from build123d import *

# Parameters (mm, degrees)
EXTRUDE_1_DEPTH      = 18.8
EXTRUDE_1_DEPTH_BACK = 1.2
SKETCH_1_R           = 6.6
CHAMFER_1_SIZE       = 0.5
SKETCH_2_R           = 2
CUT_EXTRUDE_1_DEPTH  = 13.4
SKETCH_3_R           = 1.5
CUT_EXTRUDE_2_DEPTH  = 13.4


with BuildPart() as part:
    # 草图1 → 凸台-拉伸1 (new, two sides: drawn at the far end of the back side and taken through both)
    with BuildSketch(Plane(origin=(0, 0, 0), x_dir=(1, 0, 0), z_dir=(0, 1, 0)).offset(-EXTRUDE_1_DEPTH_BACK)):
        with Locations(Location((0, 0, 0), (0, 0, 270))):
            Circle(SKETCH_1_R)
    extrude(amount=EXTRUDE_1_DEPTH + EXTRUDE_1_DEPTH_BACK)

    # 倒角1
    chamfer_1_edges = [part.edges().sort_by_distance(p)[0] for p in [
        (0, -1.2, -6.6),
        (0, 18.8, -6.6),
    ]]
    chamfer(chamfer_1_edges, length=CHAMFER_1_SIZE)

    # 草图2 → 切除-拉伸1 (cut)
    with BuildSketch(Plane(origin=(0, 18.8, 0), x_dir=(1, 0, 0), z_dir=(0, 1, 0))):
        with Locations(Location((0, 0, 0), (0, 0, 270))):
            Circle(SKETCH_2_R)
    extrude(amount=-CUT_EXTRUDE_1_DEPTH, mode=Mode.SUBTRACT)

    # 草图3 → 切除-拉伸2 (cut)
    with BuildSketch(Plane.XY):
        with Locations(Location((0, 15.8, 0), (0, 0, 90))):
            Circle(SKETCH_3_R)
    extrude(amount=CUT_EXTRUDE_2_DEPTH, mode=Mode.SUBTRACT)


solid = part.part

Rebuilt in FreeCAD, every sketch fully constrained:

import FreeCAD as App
import Part
import Sketcher


def edges_at(feature, points):
    """Names of the edges that pass closest to the given points."""
    edges = feature.Shape.Edges
    near = lambda p: min(range(len(edges)), key=lambda i: edges[i].distToShape(Part.Vertex(*p))[0])
    return sorted({f"Edge{near(p) + 1}" for p in points})

doc = App.newDocument("Part")
body = doc.addObject("PartDesign::Body", "Body")

# Sketch on XZ plane
sketch1 = doc.addObject("Sketcher::SketchObject", "Sketch")
body.addObject(sketch1)
sketch1.AttachmentSupport = (doc.XZ_Plane, [""])
sketch1.MapMode = "FlatFace"
sketch1.addGeometry(Part.Circle(App.Vector(0, 0, 0), App.Vector(0, 0, 1), 7), False)
sketch1.addConstraint(Sketcher.Constraint("Coincident", 0, 3, -1, 1))
sketch1.addConstraint(Sketcher.Constraint("Diameter", 0, 13.2))
pad1 = doc.addObject("PartDesign::Pad", "Pad")
body.addObject(pad1)
pad1.Profile = sketch1
pad1.Type = "TwoLengths"
pad1.Length = 18.8
pad1.Length2 = 1.2
pad1.Reversed = True
doc.recompute()

chamfer = doc.addObject("PartDesign::Chamfer", "Chamfer")
body.addObject(chamfer)
chamfer.Base = (pad1, edges_at(pad1, [(0, -1.2, -6.6), (0, 18.8, -6.6)]))
chamfer.Size = 0.5

# Sketch on XZ plane
sketch2 = doc.addObject("Sketcher::SketchObject", "Sketch001")
body.addObject(sketch2)
sketch2.AttachmentSupport = (doc.XZ_Plane, [""])
sketch2.MapMode = "FlatFace"
sketch2.AttachmentOffset = App.Placement(App.Vector(0, 0, -18.8), App.Rotation())
sketch2.addGeometry(Part.Circle(App.Vector(0, 0, 0), App.Vector(0, 0, 1), 2), False)
sketch2.addConstraint(Sketcher.Constraint("Coincident", 0, 3, -1, 1))
sketch2.addConstraint(Sketcher.Constraint("Diameter", 0, 4.0))
pocket1 = doc.addObject("PartDesign::Pocket", "Pocket")
body.addObject(pocket1)
pocket1.Profile = sketch2
pocket1.Length = 13.4
pocket1.Reversed = True

# Sketch on XY plane
sketch3 = doc.addObject("Sketcher::SketchObject", "Sketch002")
body.addObject(sketch3)
sketch3.AttachmentSupport = (doc.XY_Plane, [""])
sketch3.MapMode = "FlatFace"
sketch3.addGeometry(Part.Circle(App.Vector(0, 15.8, 0), App.Vector(0, 0, 1), 1.5), False)
sketch3.addConstraint(Sketcher.Constraint("PointOnObject", 0, 3, -2))
sketch3.addConstraint(Sketcher.Constraint("Diameter", 0, 3.0))
sketch3.addConstraint(Sketcher.Constraint("DistanceY", -1, 1, 0, 3, 15.8))
pocket2 = doc.addObject("PartDesign::Pocket", "Pocket001")
body.addObject(pocket2)
pocket2.Profile = sketch3
pocket2.Length = 13.4
pocket2.Reversed = True

doc.recompute()
